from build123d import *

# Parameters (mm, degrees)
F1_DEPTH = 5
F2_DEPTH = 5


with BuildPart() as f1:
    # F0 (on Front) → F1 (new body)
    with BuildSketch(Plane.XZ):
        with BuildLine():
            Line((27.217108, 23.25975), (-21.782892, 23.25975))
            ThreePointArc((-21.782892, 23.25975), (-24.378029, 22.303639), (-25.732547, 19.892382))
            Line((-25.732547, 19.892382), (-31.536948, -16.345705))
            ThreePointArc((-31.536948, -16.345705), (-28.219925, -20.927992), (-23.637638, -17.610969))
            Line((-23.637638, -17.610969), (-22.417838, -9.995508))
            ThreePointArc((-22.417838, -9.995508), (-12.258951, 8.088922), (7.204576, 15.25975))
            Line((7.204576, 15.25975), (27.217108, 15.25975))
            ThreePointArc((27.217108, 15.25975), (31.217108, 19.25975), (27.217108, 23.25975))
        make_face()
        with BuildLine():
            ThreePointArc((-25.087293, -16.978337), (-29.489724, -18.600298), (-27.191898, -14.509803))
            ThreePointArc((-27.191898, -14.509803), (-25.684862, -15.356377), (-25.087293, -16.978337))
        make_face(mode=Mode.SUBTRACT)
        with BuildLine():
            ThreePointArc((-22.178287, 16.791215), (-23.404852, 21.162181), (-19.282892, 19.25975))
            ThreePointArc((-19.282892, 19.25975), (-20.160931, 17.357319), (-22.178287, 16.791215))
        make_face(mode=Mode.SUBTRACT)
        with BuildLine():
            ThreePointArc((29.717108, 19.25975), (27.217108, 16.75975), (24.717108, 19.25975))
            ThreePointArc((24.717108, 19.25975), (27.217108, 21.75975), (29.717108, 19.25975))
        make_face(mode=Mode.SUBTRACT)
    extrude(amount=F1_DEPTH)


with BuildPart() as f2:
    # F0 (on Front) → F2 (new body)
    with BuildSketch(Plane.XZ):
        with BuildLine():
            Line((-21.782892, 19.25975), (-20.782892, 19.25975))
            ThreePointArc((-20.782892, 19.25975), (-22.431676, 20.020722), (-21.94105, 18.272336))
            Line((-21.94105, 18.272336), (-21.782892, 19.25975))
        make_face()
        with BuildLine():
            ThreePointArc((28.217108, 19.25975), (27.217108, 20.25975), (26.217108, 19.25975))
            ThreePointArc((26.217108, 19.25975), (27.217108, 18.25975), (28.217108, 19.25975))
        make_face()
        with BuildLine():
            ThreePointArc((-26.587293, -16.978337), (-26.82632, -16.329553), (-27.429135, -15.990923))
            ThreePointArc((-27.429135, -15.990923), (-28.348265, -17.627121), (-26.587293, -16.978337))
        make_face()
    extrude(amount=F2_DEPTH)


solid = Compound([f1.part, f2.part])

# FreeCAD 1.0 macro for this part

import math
import FreeCAD as App
import Part
import Sketcher
from FreeCAD import Vector
Q = App.Units.Quantity

doc = App.newDocument("Part")
body = doc.addObject("PartDesign::Body", "Body")

sketch1 = body.newObject("Sketcher::SketchObject", "Sketch")
sketch1.AttachmentSupport = (doc.getObject("XZ_Plane"), [""])
sketch1.MapMode = "FlatFace"
sketch1.addGeometry(Part.LineSegment(Vector(27.2, 23.3, 0), Vector(-21.8, 23.3, 0)), False)
sketch1.addGeometry(Part.ArcOfCircle(Part.Circle(Vector(-21.8, 19.3, 0), Vector(0, 0, 1), 4), math.radians(90), math.radians(171)), False)
sketch1.addGeometry(Part.LineSegment(Vector(-25.7, 19.9, 0), Vector(-31.5, -16.3, 0)), False)
sketch1.addGeometry(Part.ArcOfCircle(Part.Circle(Vector(-27.6, -17, 0), Vector(0, 0, 1), 4), math.radians(171), math.radians(351)), False)
sketch1.addGeometry(Part.LineSegment(Vector(-23.6, -17.6, 0), Vector(-22.4, -10, 0)), False)
sketch1.addGeometry(Part.ArcOfCircle(Part.Circle(Vector(7.2, -14.7, 0), Vector(0, 0, 1), 30), math.radians(90), math.radians(171)), False)
sketch1.addGeometry(Part.LineSegment(Vector(7.2, 15.3, 0), Vector(27.2, 15.3, 0)), False)
sketch1.addGeometry(Part.ArcOfCircle(Part.Circle(Vector(27.2, 19.3, 0), Vector(0, 0, 1), 4), math.radians(-90), math.radians(90)), False)
sketch1.addGeometry(Part.ArcOfCircle(Part.Circle(Vector(-27.6, -17, 0), Vector(0, 0, 1), 2.5), math.radians(0), math.radians(81)), False)
sketch1.addGeometry(Part.ArcOfCircle(Part.Circle(Vector(-27.6, -17, 0), Vector(0, 0, 1), 2.5), math.radians(81), math.radians(360)), False)
sketch1.addGeometry(Part.ArcOfCircle(Part.Circle(Vector(-21.8, 19.3, 0), Vector(0, 0, 1), 2.5), math.radians(-99), math.radians(0)), False)
sketch1.addGeometry(Part.ArcOfCircle(Part.Circle(Vector(-21.8, 19.3, 0), Vector(0, 0, 1), 2.5), math.radians(0), math.radians(261)), False)
sketch1.addGeometry(Part.Circle(Vector(27.2, 19.3, 0), Vector(0, 0, 1), 2.5), False)
sketch1.addConstraint(Sketcher.Constraint("Tangent", 0, 2, 1, 1))
sketch1.addConstraint(Sketcher.Constraint("Tangent", 1, 2, 2, 1))
sketch1.addConstraint(Sketcher.Constraint("Tangent", 2, 2, 3, 1))
sketch1.addConstraint(Sketcher.Constraint("Tangent", 3, 2, 4, 1))
sketch1.addConstraint(Sketcher.Constraint("Tangent", 4, 2, 5, 2))
sketch1.addConstraint(Sketcher.Constraint("Tangent", 5, 1, 6, 1))
sketch1.addConstraint(Sketcher.Constraint("Tangent", 6, 2, 7, 1))
sketch1.addConstraint(Sketcher.Constraint("Tangent", 7, 2, 0, 1))
sketch1.addConstraint(Sketcher.Constraint("Tangent", 8, 1, 9, 2))
sketch1.addConstraint(Sketcher.Constraint("Coincident", 9, 1, 8, 2))
sketch1.addConstraint(Sketcher.Constraint("Tangent", 10, 1, 11, 2))
sketch1.addConstraint(Sketcher.Constraint("Coincident", 11, 1, 10, 2))
sketch1.addConstraint(Sketcher.Constraint("Horizontal", 0))
sketch1.addConstraint(Sketcher.Constraint("Horizontal", 6))
sketch1.addConstraint(Sketcher.Constraint("Coincident", 8, 3, 3, 3))
sketch1.addConstraint(Sketcher.Constraint("Coincident", 10, 3, 1, 3))
sketch1.addConstraint(Sketcher.Constraint("Coincident", 12, 3, 7, 3))
sketch1.addConstraint(Sketcher.Constraint("Equal", 1, 3))
sketch1.addConstraint(Sketcher.Constraint("Equal", 3, 7))
sketch1.addConstraint(Sketcher.Constraint("Equal", 9, 10))
sketch1.addConstraint(Sketcher.Constraint("Equal", 11, 12))
sketch1.addConstraint(Sketcher.Constraint("Parallel", 2, 4))
sketch1.addConstraint(Sketcher.Constraint("Horizontal", 9, 3, 8, 1))
sketch1.addConstraint(Sketcher.Constraint("Horizontal", 12, 3, 11, 1))
sketch1.addConstraint(Sketcher.Constraint("Diameter", 12, Q("5 mm")))
sketch1.addConstraint(Sketcher.Constraint("Radius", 1, Q("4.000001 mm")))
sketch1.addConstraint(Sketcher.Constraint("Radius", 5, Q("30.000001 mm")))
sketch1.addConstraint(Sketcher.Constraint("DistanceX", 0, 2, 0, 1, Q("49 mm")))
sketch1.addConstraint(Sketcher.Constraint("Angle", 2, Q("-99.1 deg")))
sketch1.addConstraint(Sketcher.Constraint("Distance", 2, Q("36.7 mm")))
sketch1.addConstraint(Sketcher.Constraint("DistanceX", 1, 3, -1, 1, Q("21.782891 mm")))
sketch1.addConstraint(Sketcher.Constraint("DistanceY", -1, 1, 1, 3, Q("19.259749 mm")))
sketch1.addConstraint(Sketcher.Constraint("DistanceX", 9, 1, 3, 2, Q("3.55426 mm")))
sketch1.addConstraint(Sketcher.Constraint("DistanceX", 1, 2, 10, 1, Q("3.55426 mm")))
pad1 = body.newObject("PartDesign::Pad", "Pad")
pad1.Profile = sketch1
pad1.Length = 5
body2 = doc.addObject("PartDesign::Body", "Body001")
body2.AllowCompound = True

sketch2 = body2.newObject("Sketcher::SketchObject", "Sketch001")
sketch2.AttachmentSupport = (doc.getObject("XZ_Plane001"), [""])
sketch2.MapMode = "FlatFace"
sketch2.addGeometry(Part.LineSegment(Vector(-21.8, 19.3, 0), Vector(-20.8, 19.3, 0)), False)
sketch2.addGeometry(Part.ArcOfCircle(Part.Circle(Vector(-21.8, 19.3, 0), Vector(0, 0, 1), 1), math.radians(0), math.radians(261)), False)
sketch2.addGeometry(Part.LineSegment(Vector(-21.9, 18.3, 0), Vector(-21.8, 19.3, 0)), False)
sketch2.addGeometry(Part.Circle(Vector(27.2, 19.3, 0), Vector(0, 0, 1), 1), False)
sketch2.addGeometry(Part.ArcOfCircle(Part.Circle(Vector(-27.6, -17, 0), Vector(0, 0, 1), 1), math.radians(0), math.radians(81)), False)
sketch2.addGeometry(Part.ArcOfCircle(Part.Circle(Vector(-27.6, -17, 0), Vector(0, 0, 1), 1), math.radians(81), math.radians(360)), False)
sketch2.addConstraint(Sketcher.Constraint("Coincident", 0, 2, 1, 1))
sketch2.addConstraint(Sketcher.Constraint("Coincident", 1, 2, 2, 1))
sketch2.addConstraint(Sketcher.Constraint("Coincident", 2, 2, 0, 1))
sketch2.addConstraint(Sketcher.Constraint("Tangent", 4, 1, 5, 2))
sketch2.addConstraint(Sketcher.Constraint("Coincident", 5, 1, 4, 2))
sketch2.addConstraint(Sketcher.Constraint("Horizontal", 0))
sketch2.addConstraint(Sketcher.Constraint("Coincident", 2, 2, 1, 3))
sketch2.addConstraint(Sketcher.Constraint("Equal", 1, 3))
sketch2.addConstraint(Sketcher.Constraint("Equal", 3, 4))
sketch2.addConstraint(Sketcher.Constraint("Horizontal", 1, 3, 3, 3))
sketch2.addConstraint(Sketcher.Constraint("Horizontal", 5, 3, 4, 1))
sketch2.addConstraint(Sketcher.Constraint("Diameter", 3, Q("2 mm")))
sketch2.addConstraint(Sketcher.Constraint("Angle", 2, Q("80.900006 deg")))
sketch2.addConstraint(Sketcher.Constraint("DistanceX", 1, 3, 3, 3, Q("49 mm")))
sketch2.addConstraint(Sketcher.Constraint("DistanceX", 4, 3, 1, 3, Q("5.804401 mm")))
sketch2.addConstraint(Sketcher.Constraint("DistanceX", 1, 3, -1, 1, Q("21.782892 mm")))
sketch2.addConstraint(Sketcher.Constraint("DistanceY", -1, 1, 1, 3, Q("19.25975 mm")))
sketch2.addConstraint(Sketcher.Constraint("DistanceY", 5, 1, 1, 2, Q("34.263259 mm")))
sketch2.addConstraint(Sketcher.Constraint("DistanceY", 4, 3, -1, 1, Q("16.978336 mm")))
pad2 = body2.newObject("PartDesign::Pad", "Pad001")
pad2.Profile = sketch2
pad2.Length = 5

doc.recompute()
